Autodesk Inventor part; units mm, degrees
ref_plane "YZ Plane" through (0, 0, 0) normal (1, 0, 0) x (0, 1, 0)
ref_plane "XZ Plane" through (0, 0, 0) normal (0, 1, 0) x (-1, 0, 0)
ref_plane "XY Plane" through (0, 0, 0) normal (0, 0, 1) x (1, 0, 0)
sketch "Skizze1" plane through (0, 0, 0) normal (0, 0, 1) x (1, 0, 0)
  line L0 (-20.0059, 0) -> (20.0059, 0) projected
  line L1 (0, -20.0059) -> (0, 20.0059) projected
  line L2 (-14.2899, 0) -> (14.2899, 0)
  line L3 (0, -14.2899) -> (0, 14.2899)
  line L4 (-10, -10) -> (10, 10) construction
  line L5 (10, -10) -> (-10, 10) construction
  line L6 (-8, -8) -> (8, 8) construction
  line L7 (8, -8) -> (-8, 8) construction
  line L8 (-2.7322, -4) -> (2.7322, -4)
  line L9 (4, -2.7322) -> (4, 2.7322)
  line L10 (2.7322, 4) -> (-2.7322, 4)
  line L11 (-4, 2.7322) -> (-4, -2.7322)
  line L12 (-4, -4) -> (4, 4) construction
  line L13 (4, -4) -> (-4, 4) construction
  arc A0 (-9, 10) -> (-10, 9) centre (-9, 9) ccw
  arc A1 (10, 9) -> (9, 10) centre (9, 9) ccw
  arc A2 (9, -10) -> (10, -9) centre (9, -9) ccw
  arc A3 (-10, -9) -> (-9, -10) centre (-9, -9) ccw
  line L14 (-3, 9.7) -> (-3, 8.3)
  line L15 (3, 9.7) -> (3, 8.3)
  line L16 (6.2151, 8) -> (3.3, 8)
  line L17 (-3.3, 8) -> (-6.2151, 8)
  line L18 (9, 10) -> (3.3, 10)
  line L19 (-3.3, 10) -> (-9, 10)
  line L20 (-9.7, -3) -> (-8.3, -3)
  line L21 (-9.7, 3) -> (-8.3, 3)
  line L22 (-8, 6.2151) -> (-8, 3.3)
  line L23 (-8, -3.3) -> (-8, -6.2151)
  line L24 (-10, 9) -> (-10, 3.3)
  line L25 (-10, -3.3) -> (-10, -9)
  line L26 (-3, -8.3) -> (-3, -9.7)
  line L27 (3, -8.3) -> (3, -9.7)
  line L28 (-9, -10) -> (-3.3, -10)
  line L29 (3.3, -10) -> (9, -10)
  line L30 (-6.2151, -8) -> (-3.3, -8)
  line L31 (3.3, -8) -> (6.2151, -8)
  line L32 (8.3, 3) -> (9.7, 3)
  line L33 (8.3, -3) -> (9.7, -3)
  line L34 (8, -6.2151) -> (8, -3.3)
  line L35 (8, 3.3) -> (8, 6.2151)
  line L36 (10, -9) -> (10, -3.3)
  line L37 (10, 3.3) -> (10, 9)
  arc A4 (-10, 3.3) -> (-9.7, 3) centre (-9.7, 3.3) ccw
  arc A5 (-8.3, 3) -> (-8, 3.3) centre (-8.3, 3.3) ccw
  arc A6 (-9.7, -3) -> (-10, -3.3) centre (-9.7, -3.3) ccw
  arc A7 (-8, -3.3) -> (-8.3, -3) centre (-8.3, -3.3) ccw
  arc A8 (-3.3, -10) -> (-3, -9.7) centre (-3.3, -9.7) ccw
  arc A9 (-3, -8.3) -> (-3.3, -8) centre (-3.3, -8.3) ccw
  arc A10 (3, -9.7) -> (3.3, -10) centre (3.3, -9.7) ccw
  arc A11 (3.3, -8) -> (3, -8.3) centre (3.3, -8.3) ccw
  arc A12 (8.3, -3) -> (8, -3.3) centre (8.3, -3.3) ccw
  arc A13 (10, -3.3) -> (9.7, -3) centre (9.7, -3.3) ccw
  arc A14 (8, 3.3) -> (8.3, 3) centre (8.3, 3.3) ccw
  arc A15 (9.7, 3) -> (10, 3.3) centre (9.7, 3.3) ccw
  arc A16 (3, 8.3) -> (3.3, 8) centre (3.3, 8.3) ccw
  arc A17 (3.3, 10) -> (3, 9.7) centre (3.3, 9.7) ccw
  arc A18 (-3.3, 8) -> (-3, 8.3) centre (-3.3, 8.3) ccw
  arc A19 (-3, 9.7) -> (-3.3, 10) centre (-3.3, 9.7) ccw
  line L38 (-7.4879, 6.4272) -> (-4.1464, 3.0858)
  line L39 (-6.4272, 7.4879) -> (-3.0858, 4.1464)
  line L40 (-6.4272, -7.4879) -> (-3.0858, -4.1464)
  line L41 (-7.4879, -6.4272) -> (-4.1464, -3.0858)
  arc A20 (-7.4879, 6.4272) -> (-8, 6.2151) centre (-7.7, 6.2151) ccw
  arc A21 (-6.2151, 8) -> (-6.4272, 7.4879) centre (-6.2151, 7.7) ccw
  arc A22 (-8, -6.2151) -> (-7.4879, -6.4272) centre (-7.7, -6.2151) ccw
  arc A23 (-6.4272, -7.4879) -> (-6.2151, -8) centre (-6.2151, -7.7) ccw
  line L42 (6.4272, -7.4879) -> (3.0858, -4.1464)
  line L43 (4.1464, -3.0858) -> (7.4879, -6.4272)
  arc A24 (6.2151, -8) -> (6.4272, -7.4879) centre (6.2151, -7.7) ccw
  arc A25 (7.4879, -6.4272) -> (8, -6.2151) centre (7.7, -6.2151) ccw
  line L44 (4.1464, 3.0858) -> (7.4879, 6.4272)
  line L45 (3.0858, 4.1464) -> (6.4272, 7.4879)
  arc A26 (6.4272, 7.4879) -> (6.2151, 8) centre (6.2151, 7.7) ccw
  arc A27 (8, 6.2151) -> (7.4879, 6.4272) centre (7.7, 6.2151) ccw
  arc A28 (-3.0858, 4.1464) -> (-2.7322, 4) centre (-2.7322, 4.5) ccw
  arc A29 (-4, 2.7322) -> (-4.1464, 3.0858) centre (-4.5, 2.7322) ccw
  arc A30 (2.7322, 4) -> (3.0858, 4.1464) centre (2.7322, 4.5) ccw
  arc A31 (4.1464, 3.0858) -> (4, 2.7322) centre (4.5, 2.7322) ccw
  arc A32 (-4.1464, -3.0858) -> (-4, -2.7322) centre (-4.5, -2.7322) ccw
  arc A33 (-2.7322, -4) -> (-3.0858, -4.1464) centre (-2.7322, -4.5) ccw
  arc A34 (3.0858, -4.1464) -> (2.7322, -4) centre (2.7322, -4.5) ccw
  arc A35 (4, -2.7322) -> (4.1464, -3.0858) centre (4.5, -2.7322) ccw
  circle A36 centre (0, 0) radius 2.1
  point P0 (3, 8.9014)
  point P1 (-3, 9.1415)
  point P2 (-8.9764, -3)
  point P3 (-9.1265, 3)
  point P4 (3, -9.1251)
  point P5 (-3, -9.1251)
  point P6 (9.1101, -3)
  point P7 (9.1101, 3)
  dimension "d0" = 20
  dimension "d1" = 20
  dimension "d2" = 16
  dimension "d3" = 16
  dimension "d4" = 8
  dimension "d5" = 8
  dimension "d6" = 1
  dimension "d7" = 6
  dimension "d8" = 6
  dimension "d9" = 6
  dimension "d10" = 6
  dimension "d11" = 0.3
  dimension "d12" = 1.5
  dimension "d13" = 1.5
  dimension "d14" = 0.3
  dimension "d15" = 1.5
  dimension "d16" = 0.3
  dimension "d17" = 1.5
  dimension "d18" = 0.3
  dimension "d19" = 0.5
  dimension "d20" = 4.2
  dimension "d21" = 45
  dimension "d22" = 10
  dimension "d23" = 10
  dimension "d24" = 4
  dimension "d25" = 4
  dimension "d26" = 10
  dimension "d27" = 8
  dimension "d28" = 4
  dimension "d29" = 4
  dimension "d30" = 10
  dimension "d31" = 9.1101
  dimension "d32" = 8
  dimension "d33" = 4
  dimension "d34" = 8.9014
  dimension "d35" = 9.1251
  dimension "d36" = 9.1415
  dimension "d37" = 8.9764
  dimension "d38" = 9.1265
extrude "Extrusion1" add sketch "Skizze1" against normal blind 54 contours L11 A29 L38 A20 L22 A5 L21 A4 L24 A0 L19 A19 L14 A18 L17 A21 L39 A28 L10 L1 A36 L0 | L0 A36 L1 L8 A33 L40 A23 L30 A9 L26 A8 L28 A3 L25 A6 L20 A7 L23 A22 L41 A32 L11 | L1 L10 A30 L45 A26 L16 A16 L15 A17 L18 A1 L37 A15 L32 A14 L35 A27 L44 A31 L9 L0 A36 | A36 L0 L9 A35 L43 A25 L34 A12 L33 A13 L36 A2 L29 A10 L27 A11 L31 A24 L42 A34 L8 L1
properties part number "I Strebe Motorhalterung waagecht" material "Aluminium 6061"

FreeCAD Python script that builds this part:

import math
import FreeCAD as App
import Part
import Sketcher

V = App.Vector
Q = App.Units.Quantity

doc = App.newDocument("Part")
body = doc.addObject("PartDesign::Body", "Body")

sketch1 = body.newObject("Sketcher::SketchObject", "Sketch")
sketch1.AttachmentSupport = (doc.getObject("XY_Plane"), [""])
sketch1.MapMode = "FlatFace"
sketch1.addGeometry(Part.LineSegment(V(-4, 2.7322, 0), V(-4, -2.7322, 0)), False)
sketch1.addGeometry(Part.ArcOfCircle(Part.Circle(V(-4.5, -2.7322, 0), V(0, 0, 1), 0.500066), math.radians(-45), math.radians(0)), False)
sketch1.addGeometry(Part.LineSegment(V(-4.1464, -3.0858, 0), V(-7.4879, -6.4272, 0)), False)
sketch1.addGeometry(Part.ArcOfCircle(Part.Circle(V(-7.7, -6.2151, 0), V(0, 0, 1), 0.3), math.radians(180), math.radians(315)), False)
sketch1.addGeometry(Part.LineSegment(V(-8, -6.2151, 0), V(-8, -3.3, 0)), False)
sketch1.addGeometry(Part.ArcOfCircle(Part.Circle(V(-8.3, -3.3, 0), V(0, 0, 1), 0.3), math.radians(0), math.radians(90)), False)
sketch1.addGeometry(Part.LineSegment(V(-8.3, -3, 0), V(-9.7, -3, 0)), False)
sketch1.addGeometry(Part.ArcOfCircle(Part.Circle(V(-9.7, -3.3, 0), V(0, 0, 1), 0.3), math.radians(90), math.radians(180)), False)
sketch1.addGeometry(Part.LineSegment(V(-10, -3.3, 0), V(-10, -9, 0)), False)
sketch1.addGeometry(Part.ArcOfCircle(Part.Circle(V(-9, -9, 0), V(0, 0, 1), 1), math.radians(180), math.radians(270)), False)
sketch1.addGeometry(Part.LineSegment(V(-9, -10, 0), V(-3.3, -10, 0)), False)
sketch1.addGeometry(Part.ArcOfCircle(Part.Circle(V(-3.3, -9.7, 0), V(0, 0, 1), 0.3), math.radians(-90), math.radians(0)), False)
sketch1.addGeometry(Part.LineSegment(V(-3, -9.7, 0), V(-3, -8.3, 0)), False)
sketch1.addGeometry(Part.ArcOfCircle(Part.Circle(V(-3.3, -8.3, 0), V(0, 0, 1), 0.3), math.radians(0), math.radians(90)), False)
sketch1.addGeometry(Part.LineSegment(V(-3.3, -8, 0), V(-6.2151, -8, 0)), False)
sketch1.addGeometry(Part.ArcOfCircle(Part.Circle(V(-6.2151, -7.7, 0), V(0, 0, 1), 0.299955), math.radians(135), math.radians(270)), False)
sketch1.addGeometry(Part.LineSegment(V(-6.4272, -7.4879, 0), V(-3.0858, -4.1464, 0)), False)
sketch1.addGeometry(Part.ArcOfCircle(Part.Circle(V(-2.7322, -4.5, 0), V(0, 0, 1), 0.5), math.radians(90), math.radians(135)), False)
sketch1.addGeometry(Part.LineSegment(V(-2.7322, -4, 0), V(2.7322, -4, 0)), False)
sketch1.addGeometry(Part.ArcOfCircle(Part.Circle(V(2.7322, -4.5, 0), V(0, 0, 1), 0.500066), math.radians(45), math.radians(90)), False)
sketch1.addGeometry(Part.LineSegment(V(3.0858, -4.1464, 0), V(6.4272, -7.4879, 0)), False)
sketch1.addGeometry(Part.ArcOfCircle(Part.Circle(V(6.2151, -7.7, 0), V(0, 0, 1), 0.3), math.radians(-90), math.radians(45)), False)
sketch1.addGeometry(Part.LineSegment(V(6.2151, -8, 0), V(3.3, -8, 0)), False)
sketch1.addGeometry(Part.ArcOfCircle(Part.Circle(V(3.3, -8.3, 0), V(0, 0, 1), 0.3), math.radians(90), math.radians(180)), False)
sketch1.addGeometry(Part.LineSegment(V(3, -8.3, 0), V(3, -9.7, 0)), False)
sketch1.addGeometry(Part.ArcOfCircle(Part.Circle(V(3.3, -9.7, 0), V(0, 0, 1), 0.3), math.radians(180), math.radians(270)), False)
sketch1.addGeometry(Part.LineSegment(V(3.3, -10, 0), V(9, -10, 0)), False)
sketch1.addGeometry(Part.ArcOfCircle(Part.Circle(V(9, -9, 0), V(0, 0, 1), 1), math.radians(-90), math.radians(0)), False)
sketch1.addGeometry(Part.LineSegment(V(10, -9, 0), V(10, -3.3, 0)), False)
sketch1.addGeometry(Part.ArcOfCircle(Part.Circle(V(9.7, -3.3, 0), V(0, 0, 1), 0.3), math.radians(0), math.radians(90)), False)
sketch1.addGeometry(Part.LineSegment(V(9.7, -3, 0), V(8.3, -3, 0)), False)
sketch1.addGeometry(Part.ArcOfCircle(Part.Circle(V(8.3, -3.3, 0), V(0, 0, 1), 0.3), math.radians(90), math.radians(180)), False)
sketch1.addGeometry(Part.LineSegment(V(8, -3.3, 0), V(8, -6.2151, 0)), False)
sketch1.addGeometry(Part.ArcOfCircle(Part.Circle(V(7.7, -6.2151, 0), V(0, 0, 1), 0.299955), math.radians(-135), math.radians(0)), False)
sketch1.addGeometry(Part.LineSegment(V(7.4879, -6.4272, 0), V(4.1464, -3.0858, 0)), False)
sketch1.addGeometry(Part.ArcOfCircle(Part.Circle(V(4.5, -2.7322, 0), V(0, 0, 1), 0.5), math.radians(180), math.radians(225)), False)
sketch1.addGeometry(Part.LineSegment(V(4, -2.7322, 0), V(4, 2.7322, 0)), False)
sketch1.addGeometry(Part.ArcOfCircle(Part.Circle(V(4.5, 2.7322, 0), V(0, 0, 1), 0.500066), math.radians(135), math.radians(180)), False)
sketch1.addGeometry(Part.LineSegment(V(4.1464, 3.0858, 0), V(7.4879, 6.4272, 0)), False)
sketch1.addGeometry(Part.ArcOfCircle(Part.Circle(V(7.7, 6.2151, 0), V(0, 0, 1), 0.3), math.radians(0), math.radians(135)), False)
sketch1.addGeometry(Part.LineSegment(V(8, 6.2151, 0), V(8, 3.3, 0)), False)
sketch1.addGeometry(Part.ArcOfCircle(Part.Circle(V(8.3, 3.3, 0), V(0, 0, 1), 0.3), math.radians(180), math.radians(270)), False)
sketch1.addGeometry(Part.LineSegment(V(8.3, 3, 0), V(9.7, 3, 0)), False)
sketch1.addGeometry(Part.ArcOfCircle(Part.Circle(V(9.7, 3.3, 0), V(0, 0, 1), 0.3), math.radians(-90), math.radians(0)), False)
sketch1.addGeometry(Part.LineSegment(V(10, 3.3, 0), V(10, 9, 0)), False)
sketch1.addGeometry(Part.ArcOfCircle(Part.Circle(V(9, 9, 0), V(0, 0, 1), 1), math.radians(0), math.radians(90)), False)
sketch1.addGeometry(Part.LineSegment(V(9, 10, 0), V(3.3, 10, 0)), False)
sketch1.addGeometry(Part.ArcOfCircle(Part.Circle(V(3.3, 9.7, 0), V(0, 0, 1), 0.3), math.radians(90), math.radians(180)), False)
sketch1.addGeometry(Part.LineSegment(V(3, 9.7, 0), V(3, 8.3, 0)), False)
sketch1.addGeometry(Part.ArcOfCircle(Part.Circle(V(3.3, 8.3, 0), V(0, 0, 1), 0.3), math.radians(180), math.radians(270)), False)
sketch1.addGeometry(Part.LineSegment(V(3.3, 8, 0), V(6.2151, 8, 0)), False)
sketch1.addGeometry(Part.ArcOfCircle(Part.Circle(V(6.2151, 7.7, 0), V(0, 0, 1), 0.299955), math.radians(-45), math.radians(90)), False)
sketch1.addGeometry(Part.LineSegment(V(6.4272, 7.4879, 0), V(3.0858, 4.1464, 0)), False)
sketch1.addGeometry(Part.ArcOfCircle(Part.Circle(V(2.7322, 4.5, 0), V(0, 0, 1), 0.5), math.radians(-90), math.radians(-45)), False)
sketch1.addGeometry(Part.LineSegment(V(2.7322, 4, 0), V(-2.7322, 4, 0)), False)
sketch1.addGeometry(Part.ArcOfCircle(Part.Circle(V(-2.7322, 4.5, 0), V(0, 0, 1), 0.500066), math.radians(-135), math.radians(-90)), False)
sketch1.addGeometry(Part.LineSegment(V(-3.0858, 4.1464, 0), V(-6.4272, 7.4879, 0)), False)
sketch1.addGeometry(Part.ArcOfCircle(Part.Circle(V(-6.2151, 7.7, 0), V(0, 0, 1), 0.3), math.radians(90), math.radians(225)), False)
sketch1.addGeometry(Part.LineSegment(V(-6.2151, 8, 0), V(-3.3, 8, 0)), False)
sketch1.addGeometry(Part.ArcOfCircle(Part.Circle(V(-3.3, 8.3, 0), V(0, 0, 1), 0.3), math.radians(-90), math.radians(0)), False)
sketch1.addGeometry(Part.LineSegment(V(-3, 8.3, 0), V(-3, 9.7, 0)), False)
sketch1.addGeometry(Part.ArcOfCircle(Part.Circle(V(-3.3, 9.7, 0), V(0, 0, 1), 0.3), math.radians(0), math.radians(90)), False)
sketch1.addGeometry(Part.LineSegment(V(-3.3, 10, 0), V(-9, 10, 0)), False)
sketch1.addGeometry(Part.ArcOfCircle(Part.Circle(V(-9, 9, 0), V(0, 0, 1), 1), math.radians(90), math.radians(180)), False)
sketch1.addGeometry(Part.LineSegment(V(-10, 9, 0), V(-10, 3.3, 0)), False)
sketch1.addGeometry(Part.ArcOfCircle(Part.Circle(V(-9.7, 3.3, 0), V(0, 0, 1), 0.3), math.radians(180), math.radians(270)), False)
sketch1.addGeometry(Part.LineSegment(V(-9.7, 3, 0), V(-8.3, 3, 0)), False)
sketch1.addGeometry(Part.ArcOfCircle(Part.Circle(V(-8.3, 3.3, 0), V(0, 0, 1), 0.3), math.radians(-90), math.radians(0)), False)
sketch1.addGeometry(Part.LineSegment(V(-8, 3.3, 0), V(-8, 6.2151, 0)), False)
sketch1.addGeometry(Part.ArcOfCircle(Part.Circle(V(-7.7, 6.2151, 0), V(0, 0, 1), 0.299955), math.radians(45), math.radians(180)), False)
sketch1.addGeometry(Part.LineSegment(V(-7.4879, 6.4272, 0), V(-4.1464, 3.0858, 0)), False)
sketch1.addGeometry(Part.ArcOfCircle(Part.Circle(V(-4.5, 2.7322, 0), V(0, 0, 1), 0.5), math.radians(0), math.radians(45)), False)
sketch1.addGeometry(Part.Circle(V(0, 0, 0), V(0, 0, 1), 2.1), False)
sketch1.addConstraint(Sketcher.Constraint("Tangent", 0, 2, 1, 2))
sketch1.addConstraint(Sketcher.Constraint("Tangent", 1, 1, 2, 1))
sketch1.addConstraint(Sketcher.Constraint("Tangent", 2, 2, 3, 2))
sketch1.addConstraint(Sketcher.Constraint("Tangent", 3, 1, 4, 1))
sketch1.addConstraint(Sketcher.Constraint("Tangent", 4, 2, 5, 1))
sketch1.addConstraint(Sketcher.Constraint("Tangent", 5, 2, 6, 1))
sketch1.addConstraint(Sketcher.Constraint("Tangent", 6, 2, 7, 1))
sketch1.addConstraint(Sketcher.Constraint("Tangent", 7, 2, 8, 1))
sketch1.addConstraint(Sketcher.Constraint("Tangent", 8, 2, 9, 1))
sketch1.addConstraint(Sketcher.Constraint("Tangent", 9, 2, 10, 1))
sketch1.addConstraint(Sketcher.Constraint("Tangent", 10, 2, 11, 1))
sketch1.addConstraint(Sketcher.Constraint("Tangent", 11, 2, 12, 1))
sketch1.addConstraint(Sketcher.Constraint("Tangent", 12, 2, 13, 1))
sketch1.addConstraint(Sketcher.Constraint("Tangent", 13, 2, 14, 1))
sketch1.addConstraint(Sketcher.Constraint("Tangent", 14, 2, 15, 2))
sketch1.addConstraint(Sketcher.Constraint("Tangent", 15, 1, 16, 1))
sketch1.addConstraint(Sketcher.Constraint("Tangent", 16, 2, 17, 2))
sketch1.addConstraint(Sketcher.Constraint("Tangent", 17, 1, 18, 1))
sketch1.addConstraint(Sketcher.Constraint("Tangent", 18, 2, 19, 2))
sketch1.addConstraint(Sketcher.Constraint("Tangent", 19, 1, 20, 1))
sketch1.addConstraint(Sketcher.Constraint("Tangent", 20, 2, 21, 2))
sketch1.addConstraint(Sketcher.Constraint("Tangent", 21, 1, 22, 1))
sketch1.addConstraint(Sketcher.Constraint("Tangent", 22, 2, 23, 1))
sketch1.addConstraint(Sketcher.Constraint("Tangent", 23, 2, 24, 1))
sketch1.addConstraint(Sketcher.Constraint("Tangent", 24, 2, 25, 1))
sketch1.addConstraint(Sketcher.Constraint("Tangent", 25, 2, 26, 1))
sketch1.addConstraint(Sketcher.Constraint("Tangent", 26, 2, 27, 1))
sketch1.addConstraint(Sketcher.Constraint("Tangent", 27, 2, 28, 1))
sketch1.addConstraint(Sketcher.Constraint("Tangent", 28, 2, 29, 1))
sketch1.addConstraint(Sketcher.Constraint("Tangent", 29, 2, 30, 1))
sketch1.addConstraint(Sketcher.Constraint("Tangent", 30, 2, 31, 1))
sketch1.addConstraint(Sketcher.Constraint("Tangent", 31, 2, 32, 1))
sketch1.addConstraint(Sketcher.Constraint("Tangent", 32, 2, 33, 2))
sketch1.addConstraint(Sketcher.Constraint("Tangent", 33, 1, 34, 1))
sketch1.addConstraint(Sketcher.Constraint("Tangent", 34, 2, 35, 2))
sketch1.addConstraint(Sketcher.Constraint("Tangent", 35, 1, 36, 1))
sketch1.addConstraint(Sketcher.Constraint("Tangent", 36, 2, 37, 2))
sketch1.addConstraint(Sketcher.Constraint("Tangent", 37, 1, 38, 1))
sketch1.addConstraint(Sketcher.Constraint("Tangent", 38, 2, 39, 2))
sketch1.addConstraint(Sketcher.Constraint("Tangent", 39, 1, 40, 1))
sketch1.addConstraint(Sketcher.Constraint("Tangent", 40, 2, 41, 1))
sketch1.addConstraint(Sketcher.Constraint("Tangent", 41, 2, 42, 1))
sketch1.addConstraint(Sketcher.Constraint("Tangent", 42, 2, 43, 1))
sketch1.addConstraint(Sketcher.Constraint("Tangent", 43, 2, 44, 1))
sketch1.addConstraint(Sketcher.Constraint("Tangent", 44, 2, 45, 1))
sketch1.addConstraint(Sketcher.Constraint("Tangent", 45, 2, 46, 1))
sketch1.addConstraint(Sketcher.Constraint("Tangent", 46, 2, 47, 1))
sketch1.addConstraint(Sketcher.Constraint("Tangent", 47, 2, 48, 1))
sketch1.addConstraint(Sketcher.Constraint("Tangent", 48, 2, 49, 1))
sketch1.addConstraint(Sketcher.Constraint("Tangent", 49, 2, 50, 1))
sketch1.addConstraint(Sketcher.Constraint("Tangent", 50, 2, 51, 2))
sketch1.addConstraint(Sketcher.Constraint("Tangent", 51, 1, 52, 1))
sketch1.addConstraint(Sketcher.Constraint("Tangent", 52, 2, 53, 2))
sketch1.addConstraint(Sketcher.Constraint("Tangent", 53, 1, 54, 1))
sketch1.addConstraint(Sketcher.Constraint("Tangent", 54, 2, 55, 2))
sketch1.addConstraint(Sketcher.Constraint("Tangent", 55, 1, 56, 1))
sketch1.addConstraint(Sketcher.Constraint("Tangent", 56, 2, 57, 2))
sketch1.addConstraint(Sketcher.Constraint("Tangent", 57, 1, 58, 1))
sketch1.addConstraint(Sketcher.Constraint("Tangent", 58, 2, 59, 1))
sketch1.addConstraint(Sketcher.Constraint("Tangent", 59, 2, 60, 1))
sketch1.addConstraint(Sketcher.Constraint("Tangent", 60, 2, 61, 1))
sketch1.addConstraint(Sketcher.Constraint("Tangent", 61, 2, 62, 1))
sketch1.addConstraint(Sketcher.Constraint("Tangent", 62, 2, 63, 1))
sketch1.addConstraint(Sketcher.Constraint("Tangent", 63, 2, 64, 1))
sketch1.addConstraint(Sketcher.Constraint("Tangent", 64, 2, 65, 1))
sketch1.addConstraint(Sketcher.Constraint("Tangent", 65, 2, 66, 1))
sketch1.addConstraint(Sketcher.Constraint("Tangent", 66, 2, 67, 1))
sketch1.addConstraint(Sketcher.Constraint("Tangent", 67, 2, 68, 1))
sketch1.addConstraint(Sketcher.Constraint("Tangent", 68, 2, 69, 2))
sketch1.addConstraint(Sketcher.Constraint("Tangent", 69, 1, 70, 1))
sketch1.addConstraint(Sketcher.Constraint("Tangent", 70, 2, 71, 2))
sketch1.addConstraint(Sketcher.Constraint("Tangent", 71, 1, 0, 1))
sketch1.addConstraint(Sketcher.Constraint("Vertical", 0))
sketch1.addConstraint(Sketcher.Constraint("Vertical", 4))
sketch1.addConstraint(Sketcher.Constraint("Horizontal", 6))
sketch1.addConstraint(Sketcher.Constraint("Vertical", 8))
sketch1.addConstraint(Sketcher.Constraint("Horizontal", 10))
sketch1.addConstraint(Sketcher.Constraint("Vertical", 12))
sketch1.addConstraint(Sketcher.Constraint("Horizontal", 14))
sketch1.addConstraint(Sketcher.Constraint("Horizontal", 18))
sketch1.addConstraint(Sketcher.Constraint("Horizontal", 22))
sketch1.addConstraint(Sketcher.Constraint("Vertical", 24))
sketch1.addConstraint(Sketcher.Constraint("Horizontal", 26))
sketch1.addConstraint(Sketcher.Constraint("Vertical", 28))
sketch1.addConstraint(Sketcher.Constraint("Horizontal", 30))
sketch1.addConstraint(Sketcher.Constraint("Vertical", 32))
sketch1.addConstraint(Sketcher.Constraint("Vertical", 36))
sketch1.addConstraint(Sketcher.Constraint("Vertical", 40))
sketch1.addConstraint(Sketcher.Constraint("Horizontal", 42))
sketch1.addConstraint(Sketcher.Constraint("Vertical", 44))
sketch1.addConstraint(Sketcher.Constraint("Horizontal", 46))
sketch1.addConstraint(Sketcher.Constraint("Vertical", 48))
sketch1.addConstraint(Sketcher.Constraint("Horizontal", 50))
sketch1.addConstraint(Sketcher.Constraint("Horizontal", 54))
sketch1.addConstraint(Sketcher.Constraint("Horizontal", 58))
sketch1.addConstraint(Sketcher.Constraint("Vertical", 60))
sketch1.addConstraint(Sketcher.Constraint("Horizontal", 62))
sketch1.addConstraint(Sketcher.Constraint("Vertical", 64))
sketch1.addConstraint(Sketcher.Constraint("Horizontal", 66))
sketch1.addConstraint(Sketcher.Constraint("Vertical", 68))
sketch1.addConstraint(Sketcher.Constraint("Coincident", 72, 3, -1, 1))
sketch1.addConstraint(Sketcher.Constraint("Equal", 3, 5))
sketch1.addConstraint(Sketcher.Constraint("Equal", 5, 7))
sketch1.addConstraint(Sketcher.Constraint("Equal", 7, 11))
sketch1.addConstraint(Sketcher.Constraint("Equal", 11, 13))
sketch1.addConstraint(Sketcher.Constraint("Equal", 13, 15))
sketch1.addConstraint(Sketcher.Constraint("Equal", 1, 17))
sketch1.addConstraint(Sketcher.Constraint("Equal", 17, 19))
sketch1.addConstraint(Sketcher.Constraint("Equal", 15, 21))
sketch1.addConstraint(Sketcher.Constraint("Equal", 21, 23))
sketch1.addConstraint(Sketcher.Constraint("Equal", 23, 25))
sketch1.addConstraint(Sketcher.Constraint("Equal", 9, 27))
sketch1.addConstraint(Sketcher.Constraint("Equal", 25, 29))
sketch1.addConstraint(Sketcher.Constraint("Equal", 29, 31))
sketch1.addConstraint(Sketcher.Constraint("Equal", 31, 33))
sketch1.addConstraint(Sketcher.Constraint("Equal", 19, 35))
sketch1.addConstraint(Sketcher.Constraint("Equal", 35, 37))
sketch1.addConstraint(Sketcher.Constraint("Equal", 33, 39))
sketch1.addConstraint(Sketcher.Constraint("Equal", 39, 41))
sketch1.addConstraint(Sketcher.Constraint("Equal", 41, 43))
sketch1.addConstraint(Sketcher.Constraint("Equal", 27, 45))
sketch1.addConstraint(Sketcher.Constraint("Equal", 43, 47))
sketch1.addConstraint(Sketcher.Constraint("Equal", 47, 49))
sketch1.addConstraint(Sketcher.Constraint("Equal", 49, 51))
sketch1.addConstraint(Sketcher.Constraint("Equal", 37, 53))
sketch1.addConstraint(Sketcher.Constraint("Equal", 53, 55))
sketch1.addConstraint(Sketcher.Constraint("Equal", 51, 57))
sketch1.addConstraint(Sketcher.Constraint("Equal", 57, 59))
sketch1.addConstraint(Sketcher.Constraint("Equal", 59, 61))
sketch1.addConstraint(Sketcher.Constraint("Equal", 45, 63))
sketch1.addConstraint(Sketcher.Constraint("Equal", 61, 65))
sketch1.addConstraint(Sketcher.Constraint("Equal", 65, 67))
sketch1.addConstraint(Sketcher.Constraint("Equal", 67, 69))
sketch1.addConstraint(Sketcher.Constraint("Equal", 55, 71))
sketch1.addConstraint(Sketcher.Constraint("Symmetric", 1, 3, 37, 3, -1, 1))
sketch1.addConstraint(Sketcher.Constraint("Symmetric", 3, 3, 39, 3, -1, 1))
sketch1.addConstraint(Sketcher.Constraint("Symmetric", 7, 3, 43, 3, -1, 1))
sketch1.addConstraint(Sketcher.Constraint("Symmetric", 11, 3, 47, 3, -1, 1))
sketch1.addConstraint(Sketcher.Constraint("Symmetric", 15, 3, 51, 3, -1, 1))
sketch1.addConstraint(Sketcher.Constraint("Symmetric", 17, 3, 53, 3, -1, 1))
sketch1.addConstraint(Sketcher.Constraint("Symmetric", 21, 3, 57, 3, -1, 1))
sketch1.addConstraint(Sketcher.Constraint("Symmetric", 25, 3, 61, 3, -1, 1))
sketch1.addConstraint(Sketcher.Constraint("Symmetric", 29, 3, 65, 3, -1, 1))
sketch1.addConstraint(Sketcher.Constraint("Symmetric", 33, 3, 69, 3, -1, 1))
sketch1.addConstraint(Sketcher.Constraint("Symmetric", 15, 3, 21, 3, -2))
sketch1.addConstraint(Sketcher.Constraint("Symmetric", 11, 3, 25, 3, -2))
sketch1.addConstraint(Sketcher.Constraint("Symmetric", 7, 3, 29, 3, -2))
sketch1.addConstraint(Sketcher.Constraint("Symmetric", 3, 3, 33, 3, -2))
sketch1.addConstraint(Sketcher.Constraint("Parallel", 2, 16))
sketch1.addConstraint(Sketcher.Constraint("Perpendicular", 16, 20))
sketch1.addConstraint(Sketcher.Constraint("Parallel", 20, 34))
sketch1.addConstraint(Sketcher.Constraint("Perpendicular", 52, 56))
sketch1.addConstraint(Sketcher.Constraint("Parallel", 56, 70))
sketch1.addConstraint(Sketcher.Constraint("Horizontal", 1, 3, 35, 3))
sketch1.addConstraint(Sketcher.Constraint("Equal", 54, 0))
sketch1.addConstraint(Sketcher.Constraint("Equal", 58, 4))
sketch1.addConstraint(Sketcher.Constraint("Equal", 62, 8))
sketch1.addConstraint(Sketcher.Constraint("Equal", 66, 12))
sketch1.addConstraint(Sketcher.Constraint("Equal", 2, 16))
sketch1.addConstraint(Sketcher.Constraint("Radius", 9, Q("1 mm")))
sketch1.addConstraint(Sketcher.Constraint("Diameter", 72, Q("4.2 mm")))
sketch1.addConstraint(Sketcher.Constraint("Radius", 1, Q("0.5 mm")))
sketch1.addConstraint(Sketcher.Constraint("Radius", 3, Q("0.3 mm")))
sketch1.addConstraint(Sketcher.Constraint("DistanceX", 0, 2, -1, 1, Q("4 mm")))
sketch1.addConstraint(Sketcher.Constraint("DistanceX", 3, 1, -1, 1, Q("8 mm")))
sketch1.addConstraint(Sketcher.Constraint("DistanceX", 7, 2, -1, 1, Q("10 mm")))
sketch1.addConstraint(Sketcher.Constraint("DistanceX", 10, 1, 10, 2, Q("5.7 mm")))
sketch1.addConstraint(Sketcher.Constraint("DistanceX", 14, 2, 14, 1, Q("2.915 mm")))
pad1 = body.newObject("PartDesign::Pad", "Pad")
pad1.Profile = sketch1
pad1.Length = 54
pad1.Reversed = True

doc.recompute()
